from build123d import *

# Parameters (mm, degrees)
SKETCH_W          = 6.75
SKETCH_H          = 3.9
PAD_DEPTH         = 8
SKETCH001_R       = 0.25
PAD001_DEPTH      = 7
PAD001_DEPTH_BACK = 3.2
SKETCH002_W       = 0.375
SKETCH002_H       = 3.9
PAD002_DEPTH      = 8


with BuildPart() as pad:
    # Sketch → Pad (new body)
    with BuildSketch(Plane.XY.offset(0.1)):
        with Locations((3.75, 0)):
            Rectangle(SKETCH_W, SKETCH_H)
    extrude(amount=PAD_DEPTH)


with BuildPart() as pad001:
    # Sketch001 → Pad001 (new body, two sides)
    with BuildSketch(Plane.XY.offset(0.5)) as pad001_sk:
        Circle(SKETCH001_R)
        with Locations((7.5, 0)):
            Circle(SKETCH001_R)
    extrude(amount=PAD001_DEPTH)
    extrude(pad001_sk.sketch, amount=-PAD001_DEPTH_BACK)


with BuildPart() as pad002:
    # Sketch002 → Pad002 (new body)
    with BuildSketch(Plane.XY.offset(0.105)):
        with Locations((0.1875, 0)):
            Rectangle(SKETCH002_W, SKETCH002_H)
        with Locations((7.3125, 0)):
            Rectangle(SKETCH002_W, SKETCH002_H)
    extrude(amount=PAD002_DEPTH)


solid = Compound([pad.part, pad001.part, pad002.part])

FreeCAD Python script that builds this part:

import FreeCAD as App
import Part
import Sketcher
Q = App.Units.Quantity

doc = App.newDocument("Part")
body = doc.addObject("PartDesign::Body", "Body")

# Sketch on XY plane
sketch1 = body.newObject("Sketcher::SketchObject", "Sketch")
sketch1.AttachmentSupport = (doc.getObject("XY_Plane"), [""])
sketch1.MapMode = "FlatFace"
sketch1.AttachmentOffset = App.Placement(App.Vector(0, 0, 0.1), App.Rotation())
sketch1.addGeometry(Part.LineSegment(App.Vector(0.4, 1.9, 0), App.Vector(0.4, -1.9, 0)), False)
sketch1.addGeometry(Part.LineSegment(App.Vector(0.4, -1.9, 0), App.Vector(7.1, -1.9, 0)), False)
sketch1.addGeometry(Part.LineSegment(App.Vector(7.1, -1.9, 0), App.Vector(7.1, 1.9, 0)), False)
sketch1.addGeometry(Part.LineSegment(App.Vector(7.1, 1.9, 0), App.Vector(0.4, 1.9, 0)), False)
sketch1.addConstraint(Sketcher.Constraint("Coincident", 0, 2, 1, 1))
sketch1.addConstraint(Sketcher.Constraint("Coincident", 1, 2, 2, 1))
sketch1.addConstraint(Sketcher.Constraint("Coincident", 2, 2, 3, 1))
sketch1.addConstraint(Sketcher.Constraint("Coincident", 3, 2, 0, 1))
sketch1.addConstraint(Sketcher.Constraint("Vertical", 0))
sketch1.addConstraint(Sketcher.Constraint("Horizontal", 1))
sketch1.addConstraint(Sketcher.Constraint("Vertical", 2))
sketch1.addConstraint(Sketcher.Constraint("Horizontal", 3))
sketch1.addConstraint(Sketcher.Constraint("DistanceY", 0, 2, 0, 1, Q("3.9 mm")))
sketch1.addConstraint(Sketcher.Constraint("DistanceX", 1, 1, 1, 2, Q("6.75 mm")))
sketch1.addConstraint(Sketcher.Constraint("DistanceY", 0, 2, -1, 1, Q("1.95 mm")))
sketch1.addConstraint(Sketcher.Constraint("DistanceX", -1, 1, 0, 2, Q("0.375 mm")))
pad1 = body.newObject("PartDesign::Pad", "Pad")
pad1.Profile = sketch1
pad1.Length = 8
body2 = doc.addObject("PartDesign::Body", "Body001")
body2.AllowCompound = True

# Sketch on XY plane
sketch2 = body2.newObject("Sketcher::SketchObject", "Sketch001")
sketch2.AttachmentSupport = (doc.getObject("XY_Plane001"), [""])
sketch2.MapMode = "FlatFace"
sketch2.AttachmentOffset = App.Placement(App.Vector(0, 0, 0.5), App.Rotation())
sketch2.addGeometry(Part.Circle(App.Vector(0, 0, 0), App.Vector(0, 0, 1), 0.25), False)
sketch2.addGeometry(Part.Circle(App.Vector(7.5, 0, 0), App.Vector(0, 0, 1), 0.25), False)
sketch2.addConstraint(Sketcher.Constraint("Coincident", 0, 3, -1, 1))
sketch2.addConstraint(Sketcher.Constraint("Equal", 0, 1))
sketch2.addConstraint(Sketcher.Constraint("PointOnObject", 1, 3, -1))
sketch2.addConstraint(Sketcher.Constraint("Diameter", 0, Q("0.5 mm")))
sketch2.addConstraint(Sketcher.Constraint("DistanceX", -1, 1, 1, 3, Q("7.5 mm")))
pad2 = body2.newObject("PartDesign::Pad", "Pad001")
pad2.Profile = sketch2
pad2.Type = "TwoLengths"
pad2.Length = 7
pad2.Length2 = 3.2
body3 = doc.addObject("PartDesign::Body", "Body002")
body3.AllowCompound = True

# Sketch on XY plane
sketch3 = body3.newObject("Sketcher::SketchObject", "Sketch002")
sketch3.AttachmentSupport = (doc.getObject("XY_Plane002"), [""])
sketch3.MapMode = "FlatFace"
sketch3.AttachmentOffset = App.Placement(App.Vector(0, 0, 0.105), App.Rotation())
sketch3.addGeometry(Part.LineSegment(App.Vector(0, 1.95, 0), App.Vector(0, -1.95, 0)), False)
sketch3.addGeometry(Part.LineSegment(App.Vector(0, -1.95, 0), App.Vector(0.38, -1.95, 0)), False)
sketch3.addGeometry(Part.LineSegment(App.Vector(0.38, -1.95, 0), App.Vector(0.38, 1.95, 0)), False)
sketch3.addGeometry(Part.LineSegment(App.Vector(0.38, 1.95, 0), App.Vector(0, 1.95, 0)), False)
sketch3.addGeometry(Part.LineSegment(App.Vector(7.12, 1.95, 0), App.Vector(7.12, -1.95, 0)), False)
sketch3.addGeometry(Part.LineSegment(App.Vector(7.12, -1.95, 0), App.Vector(7.5, -1.95, 0)), False)
sketch3.addGeometry(Part.LineSegment(App.Vector(7.5, -1.95, 0), App.Vector(7.5, 1.95, 0)), False)
sketch3.addGeometry(Part.LineSegment(App.Vector(7.5, 1.95, 0), App.Vector(7.12, 1.95, 0)), False)
sketch3.addConstraint(Sketcher.Constraint("Coincident", 0, 2, 1, 1))
sketch3.addConstraint(Sketcher.Constraint("Coincident", 1, 2, 2, 1))
sketch3.addConstraint(Sketcher.Constraint("Coincident", 2, 2, 3, 1))
sketch3.addConstraint(Sketcher.Constraint("Coincident", 3, 2, 0, 1))
sketch3.addConstraint(Sketcher.Constraint("Coincident", 4, 2, 5, 1))
sketch3.addConstraint(Sketcher.Constraint("Coincident", 5, 2, 6, 1))
sketch3.addConstraint(Sketcher.Constraint("Coincident", 6, 2, 7, 1))
sketch3.addConstraint(Sketcher.Constraint("Coincident", 7, 2, 4, 1))
sketch3.addConstraint(Sketcher.Constraint("Vertical", 0))
sketch3.addConstraint(Sketcher.Constraint("Horizontal", 1))
sketch3.addConstraint(Sketcher.Constraint("Vertical", 2))
sketch3.addConstraint(Sketcher.Constraint("Horizontal", 3))
sketch3.addConstraint(Sketcher.Constraint("Vertical", 4))
sketch3.addConstraint(Sketcher.Constraint("Horizontal", 5))
sketch3.addConstraint(Sketcher.Constraint("Vertical", 6))
sketch3.addConstraint(Sketcher.Constraint("Horizontal", 7))
sketch3.addConstraint(Sketcher.Constraint("Symmetric", 0, 2, 3, 2, -1, 1))
sketch3.addConstraint(Sketcher.Constraint("Horizontal", 1, 2, 4, 2))
sketch3.addConstraint(Sketcher.Constraint("Horizontal", 3, 2, 6, 2))
sketch3.addConstraint(Sketcher.Constraint("Equal", 3, 5))
sketch3.addConstraint(Sketcher.Constraint("DistanceY", 0, 2, 0, 1, Q("3.9 mm")))
sketch3.addConstraint(Sketcher.Constraint("DistanceX", -1, 1, 5, 2, Q("7.5 mm")))
sketch3.addConstraint(Sketcher.Constraint("DistanceX", 1, 1, 1, 2, Q("0.375 mm")))
pad3 = body3.newObject("PartDesign::Pad", "Pad002")
pad3.Profile = sketch3
pad3.Length = 8

doc.recompute()
